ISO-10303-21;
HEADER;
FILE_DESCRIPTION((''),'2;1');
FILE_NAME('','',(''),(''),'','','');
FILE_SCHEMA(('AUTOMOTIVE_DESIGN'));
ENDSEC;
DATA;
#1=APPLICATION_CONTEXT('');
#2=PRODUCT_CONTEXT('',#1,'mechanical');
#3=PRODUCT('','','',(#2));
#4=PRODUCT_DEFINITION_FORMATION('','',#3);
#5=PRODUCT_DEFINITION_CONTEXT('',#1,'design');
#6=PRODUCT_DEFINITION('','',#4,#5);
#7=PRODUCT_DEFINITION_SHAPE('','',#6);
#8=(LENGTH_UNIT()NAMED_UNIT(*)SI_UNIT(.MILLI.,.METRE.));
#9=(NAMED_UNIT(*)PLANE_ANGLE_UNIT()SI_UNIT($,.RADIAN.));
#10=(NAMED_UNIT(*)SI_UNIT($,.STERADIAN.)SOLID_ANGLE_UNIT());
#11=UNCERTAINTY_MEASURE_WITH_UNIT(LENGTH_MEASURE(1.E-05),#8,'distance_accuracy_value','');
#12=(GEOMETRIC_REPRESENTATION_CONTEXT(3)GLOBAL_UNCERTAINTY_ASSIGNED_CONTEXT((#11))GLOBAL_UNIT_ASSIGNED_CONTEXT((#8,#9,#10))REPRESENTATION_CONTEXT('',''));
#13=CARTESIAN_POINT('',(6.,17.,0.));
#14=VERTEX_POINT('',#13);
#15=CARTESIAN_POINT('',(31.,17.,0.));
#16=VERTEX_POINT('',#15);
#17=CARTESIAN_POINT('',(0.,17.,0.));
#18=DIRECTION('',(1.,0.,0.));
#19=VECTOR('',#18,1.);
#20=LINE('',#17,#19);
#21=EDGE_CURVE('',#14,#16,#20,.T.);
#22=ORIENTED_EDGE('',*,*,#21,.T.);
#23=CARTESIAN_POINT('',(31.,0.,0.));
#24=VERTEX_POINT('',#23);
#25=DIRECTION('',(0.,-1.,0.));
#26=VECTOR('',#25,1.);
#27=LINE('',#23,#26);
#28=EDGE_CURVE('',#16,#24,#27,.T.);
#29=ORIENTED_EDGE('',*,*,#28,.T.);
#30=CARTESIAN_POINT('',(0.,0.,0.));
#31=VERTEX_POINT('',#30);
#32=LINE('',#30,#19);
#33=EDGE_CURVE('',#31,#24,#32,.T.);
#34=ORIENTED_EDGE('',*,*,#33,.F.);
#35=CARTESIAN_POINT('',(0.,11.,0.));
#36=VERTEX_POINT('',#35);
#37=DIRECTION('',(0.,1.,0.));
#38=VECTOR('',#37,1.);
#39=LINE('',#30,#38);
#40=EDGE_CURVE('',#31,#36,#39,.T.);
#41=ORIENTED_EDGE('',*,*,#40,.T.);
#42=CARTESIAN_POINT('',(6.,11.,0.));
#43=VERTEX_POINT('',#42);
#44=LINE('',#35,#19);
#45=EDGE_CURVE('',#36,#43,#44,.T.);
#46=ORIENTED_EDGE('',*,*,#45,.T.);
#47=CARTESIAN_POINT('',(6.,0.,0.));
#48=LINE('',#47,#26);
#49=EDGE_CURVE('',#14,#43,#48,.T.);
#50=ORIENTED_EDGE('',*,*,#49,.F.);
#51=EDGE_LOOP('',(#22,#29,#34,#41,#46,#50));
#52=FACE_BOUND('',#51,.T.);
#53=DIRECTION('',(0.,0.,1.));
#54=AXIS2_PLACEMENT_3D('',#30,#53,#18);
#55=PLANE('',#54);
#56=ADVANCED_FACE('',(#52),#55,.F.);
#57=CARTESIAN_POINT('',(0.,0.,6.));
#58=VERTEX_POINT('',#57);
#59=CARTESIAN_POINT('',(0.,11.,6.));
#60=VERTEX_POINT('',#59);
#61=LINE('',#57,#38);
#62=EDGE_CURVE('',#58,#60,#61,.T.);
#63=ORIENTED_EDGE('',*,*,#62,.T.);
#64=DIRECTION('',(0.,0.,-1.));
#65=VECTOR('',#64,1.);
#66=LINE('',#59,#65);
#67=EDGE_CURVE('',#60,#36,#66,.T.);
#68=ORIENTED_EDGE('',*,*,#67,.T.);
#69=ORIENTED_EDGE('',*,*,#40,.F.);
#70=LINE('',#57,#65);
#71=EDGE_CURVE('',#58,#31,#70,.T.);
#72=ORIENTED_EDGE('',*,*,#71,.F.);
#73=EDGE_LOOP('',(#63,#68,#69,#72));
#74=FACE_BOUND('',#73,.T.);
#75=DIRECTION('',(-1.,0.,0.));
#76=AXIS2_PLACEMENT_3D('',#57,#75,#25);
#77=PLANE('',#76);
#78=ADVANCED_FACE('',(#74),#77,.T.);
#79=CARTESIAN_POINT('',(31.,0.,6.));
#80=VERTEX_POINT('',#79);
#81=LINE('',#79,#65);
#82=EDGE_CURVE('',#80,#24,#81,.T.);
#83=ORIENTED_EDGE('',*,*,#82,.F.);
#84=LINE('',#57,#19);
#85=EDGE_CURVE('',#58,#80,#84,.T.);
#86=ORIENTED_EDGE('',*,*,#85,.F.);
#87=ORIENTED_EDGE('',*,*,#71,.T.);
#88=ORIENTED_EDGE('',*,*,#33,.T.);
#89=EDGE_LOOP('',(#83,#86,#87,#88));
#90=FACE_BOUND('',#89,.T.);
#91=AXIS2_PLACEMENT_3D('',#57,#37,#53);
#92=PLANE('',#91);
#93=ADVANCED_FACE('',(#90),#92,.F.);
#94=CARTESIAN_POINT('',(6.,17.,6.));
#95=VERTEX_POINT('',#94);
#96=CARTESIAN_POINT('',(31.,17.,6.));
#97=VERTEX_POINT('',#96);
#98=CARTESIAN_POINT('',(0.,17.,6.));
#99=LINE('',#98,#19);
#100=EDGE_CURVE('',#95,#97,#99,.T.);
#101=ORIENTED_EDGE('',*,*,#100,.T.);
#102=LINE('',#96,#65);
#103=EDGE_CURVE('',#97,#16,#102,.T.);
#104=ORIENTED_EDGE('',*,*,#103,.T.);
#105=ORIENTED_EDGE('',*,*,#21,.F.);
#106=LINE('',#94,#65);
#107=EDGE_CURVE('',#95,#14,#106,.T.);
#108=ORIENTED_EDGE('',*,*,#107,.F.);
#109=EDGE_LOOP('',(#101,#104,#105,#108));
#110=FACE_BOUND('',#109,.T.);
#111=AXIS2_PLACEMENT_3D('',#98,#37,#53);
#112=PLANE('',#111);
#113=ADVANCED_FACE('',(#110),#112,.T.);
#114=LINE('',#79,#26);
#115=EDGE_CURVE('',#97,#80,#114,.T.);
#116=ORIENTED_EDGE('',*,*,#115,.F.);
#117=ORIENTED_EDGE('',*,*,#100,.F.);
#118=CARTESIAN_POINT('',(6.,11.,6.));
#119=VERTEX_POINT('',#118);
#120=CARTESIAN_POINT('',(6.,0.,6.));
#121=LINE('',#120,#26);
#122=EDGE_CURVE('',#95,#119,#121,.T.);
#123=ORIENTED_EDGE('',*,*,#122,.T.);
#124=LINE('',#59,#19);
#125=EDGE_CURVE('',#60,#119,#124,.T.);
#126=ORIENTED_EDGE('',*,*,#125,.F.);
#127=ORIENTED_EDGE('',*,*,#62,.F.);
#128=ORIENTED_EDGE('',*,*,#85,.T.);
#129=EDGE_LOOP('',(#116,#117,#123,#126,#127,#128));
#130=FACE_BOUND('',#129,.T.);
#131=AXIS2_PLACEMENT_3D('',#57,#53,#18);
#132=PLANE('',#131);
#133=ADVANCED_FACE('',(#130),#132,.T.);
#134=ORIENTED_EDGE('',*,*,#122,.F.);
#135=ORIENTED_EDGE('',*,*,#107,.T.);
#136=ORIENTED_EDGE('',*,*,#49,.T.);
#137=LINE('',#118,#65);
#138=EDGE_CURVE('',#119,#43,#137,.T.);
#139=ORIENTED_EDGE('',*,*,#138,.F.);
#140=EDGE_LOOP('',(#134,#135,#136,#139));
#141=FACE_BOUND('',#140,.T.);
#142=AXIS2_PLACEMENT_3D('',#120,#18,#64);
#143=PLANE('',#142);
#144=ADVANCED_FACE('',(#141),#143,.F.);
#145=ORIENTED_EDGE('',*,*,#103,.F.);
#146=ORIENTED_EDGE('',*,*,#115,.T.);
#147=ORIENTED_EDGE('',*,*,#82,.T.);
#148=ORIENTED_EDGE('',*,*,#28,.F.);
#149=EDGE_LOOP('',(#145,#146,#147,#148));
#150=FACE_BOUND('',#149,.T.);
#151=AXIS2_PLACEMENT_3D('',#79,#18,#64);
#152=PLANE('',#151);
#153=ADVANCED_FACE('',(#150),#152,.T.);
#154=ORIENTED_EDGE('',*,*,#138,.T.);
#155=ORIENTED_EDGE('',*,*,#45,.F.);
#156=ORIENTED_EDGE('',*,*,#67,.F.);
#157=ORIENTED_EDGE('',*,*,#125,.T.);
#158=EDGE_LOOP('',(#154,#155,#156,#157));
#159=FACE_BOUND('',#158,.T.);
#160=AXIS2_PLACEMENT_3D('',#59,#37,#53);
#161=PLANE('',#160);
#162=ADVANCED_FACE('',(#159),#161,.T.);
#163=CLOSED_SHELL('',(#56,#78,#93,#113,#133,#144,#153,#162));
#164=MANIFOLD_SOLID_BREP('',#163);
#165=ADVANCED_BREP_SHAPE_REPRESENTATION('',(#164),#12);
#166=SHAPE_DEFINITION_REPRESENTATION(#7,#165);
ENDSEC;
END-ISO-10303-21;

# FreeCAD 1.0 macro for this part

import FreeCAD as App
import Part
import Sketcher

V = App.Vector
Q = App.Units.Quantity


def add_polygon(sketch, points):
    """Adds a closed chain of lines whose ends are joined by coincident constraints."""
    first, n = sketch.GeometryCount, len(points)
    for a, b in zip(points, points[1:] + points[:1]):
        sketch.addGeometry(Part.LineSegment(App.Vector(*a, 0), App.Vector(*b, 0)), False)
    for i in range(n):
        sketch.addConstraint(Sketcher.Constraint("Coincident", first + i, 2, first + (i + 1) % n, 1))

doc = App.newDocument("Part")
params = doc.addObject("Spreadsheet::Sheet", "Params")
for row, (alias, value) in enumerate([
    ("sketch1_width", "31 mm"),
    ("sketch1_width2", "25 mm"),
    ("sketch1_height", "11 mm"),
    ("pad1_length", "6 mm"),
], start=1):
    params.set(f"A{row}", alias)
    params.set(f"B{row}", "=" + value)
    params.setAlias(f"B{row}", alias)

body = doc.addObject("PartDesign::Body", "Body")

# Sketch on XY plane
sketch1 = body.newObject("Sketcher::SketchObject", "Sketch")
sketch1.AttachmentSupport = (doc.getObject("XY_Plane"), [""])
sketch1.MapMode = "FlatFace"
add_polygon(sketch1, [(0, 11), (0, 0), (31, 0), (31, 17), (6, 17), (6, 11)])  # lines 0-5
sketch1.addConstraint(Sketcher.Constraint("Vertical", 0))
sketch1.addConstraint(Sketcher.Constraint("Horizontal", 1))
sketch1.addConstraint(Sketcher.Constraint("Vertical", 2))
sketch1.addConstraint(Sketcher.Constraint("Horizontal", 3))
sketch1.addConstraint(Sketcher.Constraint("Vertical", 4))
sketch1.addConstraint(Sketcher.Constraint("Horizontal", 5))
sketch1.addConstraint(Sketcher.Constraint("Coincident", 0, 2, -1, 1))
sketch1.addConstraint(Sketcher.Constraint("Equal", 5, 4))
sketch1.addConstraint(Sketcher.Constraint("DistanceX", 1, 1, 1, 2, Q("31 mm")))
sketch1.addConstraint(Sketcher.Constraint("DistanceX", 3, 2, 3, 1, Q("25 mm")))
sketch1.addConstraint(Sketcher.Constraint("DistanceY", 0, 2, 0, 1, Q("11 mm")))
sketch1.setExpression("Constraints[14]", "Params.sketch1_width")
sketch1.setExpression("Constraints[15]", "Params.sketch1_width2")
sketch1.setExpression("Constraints[16]", "Params.sketch1_height")
pad1 = body.newObject("PartDesign::Pad", "Pad")
pad1.Profile = sketch1
pad1.setExpression("Length", "Params.pad1_length")

doc.recompute()
